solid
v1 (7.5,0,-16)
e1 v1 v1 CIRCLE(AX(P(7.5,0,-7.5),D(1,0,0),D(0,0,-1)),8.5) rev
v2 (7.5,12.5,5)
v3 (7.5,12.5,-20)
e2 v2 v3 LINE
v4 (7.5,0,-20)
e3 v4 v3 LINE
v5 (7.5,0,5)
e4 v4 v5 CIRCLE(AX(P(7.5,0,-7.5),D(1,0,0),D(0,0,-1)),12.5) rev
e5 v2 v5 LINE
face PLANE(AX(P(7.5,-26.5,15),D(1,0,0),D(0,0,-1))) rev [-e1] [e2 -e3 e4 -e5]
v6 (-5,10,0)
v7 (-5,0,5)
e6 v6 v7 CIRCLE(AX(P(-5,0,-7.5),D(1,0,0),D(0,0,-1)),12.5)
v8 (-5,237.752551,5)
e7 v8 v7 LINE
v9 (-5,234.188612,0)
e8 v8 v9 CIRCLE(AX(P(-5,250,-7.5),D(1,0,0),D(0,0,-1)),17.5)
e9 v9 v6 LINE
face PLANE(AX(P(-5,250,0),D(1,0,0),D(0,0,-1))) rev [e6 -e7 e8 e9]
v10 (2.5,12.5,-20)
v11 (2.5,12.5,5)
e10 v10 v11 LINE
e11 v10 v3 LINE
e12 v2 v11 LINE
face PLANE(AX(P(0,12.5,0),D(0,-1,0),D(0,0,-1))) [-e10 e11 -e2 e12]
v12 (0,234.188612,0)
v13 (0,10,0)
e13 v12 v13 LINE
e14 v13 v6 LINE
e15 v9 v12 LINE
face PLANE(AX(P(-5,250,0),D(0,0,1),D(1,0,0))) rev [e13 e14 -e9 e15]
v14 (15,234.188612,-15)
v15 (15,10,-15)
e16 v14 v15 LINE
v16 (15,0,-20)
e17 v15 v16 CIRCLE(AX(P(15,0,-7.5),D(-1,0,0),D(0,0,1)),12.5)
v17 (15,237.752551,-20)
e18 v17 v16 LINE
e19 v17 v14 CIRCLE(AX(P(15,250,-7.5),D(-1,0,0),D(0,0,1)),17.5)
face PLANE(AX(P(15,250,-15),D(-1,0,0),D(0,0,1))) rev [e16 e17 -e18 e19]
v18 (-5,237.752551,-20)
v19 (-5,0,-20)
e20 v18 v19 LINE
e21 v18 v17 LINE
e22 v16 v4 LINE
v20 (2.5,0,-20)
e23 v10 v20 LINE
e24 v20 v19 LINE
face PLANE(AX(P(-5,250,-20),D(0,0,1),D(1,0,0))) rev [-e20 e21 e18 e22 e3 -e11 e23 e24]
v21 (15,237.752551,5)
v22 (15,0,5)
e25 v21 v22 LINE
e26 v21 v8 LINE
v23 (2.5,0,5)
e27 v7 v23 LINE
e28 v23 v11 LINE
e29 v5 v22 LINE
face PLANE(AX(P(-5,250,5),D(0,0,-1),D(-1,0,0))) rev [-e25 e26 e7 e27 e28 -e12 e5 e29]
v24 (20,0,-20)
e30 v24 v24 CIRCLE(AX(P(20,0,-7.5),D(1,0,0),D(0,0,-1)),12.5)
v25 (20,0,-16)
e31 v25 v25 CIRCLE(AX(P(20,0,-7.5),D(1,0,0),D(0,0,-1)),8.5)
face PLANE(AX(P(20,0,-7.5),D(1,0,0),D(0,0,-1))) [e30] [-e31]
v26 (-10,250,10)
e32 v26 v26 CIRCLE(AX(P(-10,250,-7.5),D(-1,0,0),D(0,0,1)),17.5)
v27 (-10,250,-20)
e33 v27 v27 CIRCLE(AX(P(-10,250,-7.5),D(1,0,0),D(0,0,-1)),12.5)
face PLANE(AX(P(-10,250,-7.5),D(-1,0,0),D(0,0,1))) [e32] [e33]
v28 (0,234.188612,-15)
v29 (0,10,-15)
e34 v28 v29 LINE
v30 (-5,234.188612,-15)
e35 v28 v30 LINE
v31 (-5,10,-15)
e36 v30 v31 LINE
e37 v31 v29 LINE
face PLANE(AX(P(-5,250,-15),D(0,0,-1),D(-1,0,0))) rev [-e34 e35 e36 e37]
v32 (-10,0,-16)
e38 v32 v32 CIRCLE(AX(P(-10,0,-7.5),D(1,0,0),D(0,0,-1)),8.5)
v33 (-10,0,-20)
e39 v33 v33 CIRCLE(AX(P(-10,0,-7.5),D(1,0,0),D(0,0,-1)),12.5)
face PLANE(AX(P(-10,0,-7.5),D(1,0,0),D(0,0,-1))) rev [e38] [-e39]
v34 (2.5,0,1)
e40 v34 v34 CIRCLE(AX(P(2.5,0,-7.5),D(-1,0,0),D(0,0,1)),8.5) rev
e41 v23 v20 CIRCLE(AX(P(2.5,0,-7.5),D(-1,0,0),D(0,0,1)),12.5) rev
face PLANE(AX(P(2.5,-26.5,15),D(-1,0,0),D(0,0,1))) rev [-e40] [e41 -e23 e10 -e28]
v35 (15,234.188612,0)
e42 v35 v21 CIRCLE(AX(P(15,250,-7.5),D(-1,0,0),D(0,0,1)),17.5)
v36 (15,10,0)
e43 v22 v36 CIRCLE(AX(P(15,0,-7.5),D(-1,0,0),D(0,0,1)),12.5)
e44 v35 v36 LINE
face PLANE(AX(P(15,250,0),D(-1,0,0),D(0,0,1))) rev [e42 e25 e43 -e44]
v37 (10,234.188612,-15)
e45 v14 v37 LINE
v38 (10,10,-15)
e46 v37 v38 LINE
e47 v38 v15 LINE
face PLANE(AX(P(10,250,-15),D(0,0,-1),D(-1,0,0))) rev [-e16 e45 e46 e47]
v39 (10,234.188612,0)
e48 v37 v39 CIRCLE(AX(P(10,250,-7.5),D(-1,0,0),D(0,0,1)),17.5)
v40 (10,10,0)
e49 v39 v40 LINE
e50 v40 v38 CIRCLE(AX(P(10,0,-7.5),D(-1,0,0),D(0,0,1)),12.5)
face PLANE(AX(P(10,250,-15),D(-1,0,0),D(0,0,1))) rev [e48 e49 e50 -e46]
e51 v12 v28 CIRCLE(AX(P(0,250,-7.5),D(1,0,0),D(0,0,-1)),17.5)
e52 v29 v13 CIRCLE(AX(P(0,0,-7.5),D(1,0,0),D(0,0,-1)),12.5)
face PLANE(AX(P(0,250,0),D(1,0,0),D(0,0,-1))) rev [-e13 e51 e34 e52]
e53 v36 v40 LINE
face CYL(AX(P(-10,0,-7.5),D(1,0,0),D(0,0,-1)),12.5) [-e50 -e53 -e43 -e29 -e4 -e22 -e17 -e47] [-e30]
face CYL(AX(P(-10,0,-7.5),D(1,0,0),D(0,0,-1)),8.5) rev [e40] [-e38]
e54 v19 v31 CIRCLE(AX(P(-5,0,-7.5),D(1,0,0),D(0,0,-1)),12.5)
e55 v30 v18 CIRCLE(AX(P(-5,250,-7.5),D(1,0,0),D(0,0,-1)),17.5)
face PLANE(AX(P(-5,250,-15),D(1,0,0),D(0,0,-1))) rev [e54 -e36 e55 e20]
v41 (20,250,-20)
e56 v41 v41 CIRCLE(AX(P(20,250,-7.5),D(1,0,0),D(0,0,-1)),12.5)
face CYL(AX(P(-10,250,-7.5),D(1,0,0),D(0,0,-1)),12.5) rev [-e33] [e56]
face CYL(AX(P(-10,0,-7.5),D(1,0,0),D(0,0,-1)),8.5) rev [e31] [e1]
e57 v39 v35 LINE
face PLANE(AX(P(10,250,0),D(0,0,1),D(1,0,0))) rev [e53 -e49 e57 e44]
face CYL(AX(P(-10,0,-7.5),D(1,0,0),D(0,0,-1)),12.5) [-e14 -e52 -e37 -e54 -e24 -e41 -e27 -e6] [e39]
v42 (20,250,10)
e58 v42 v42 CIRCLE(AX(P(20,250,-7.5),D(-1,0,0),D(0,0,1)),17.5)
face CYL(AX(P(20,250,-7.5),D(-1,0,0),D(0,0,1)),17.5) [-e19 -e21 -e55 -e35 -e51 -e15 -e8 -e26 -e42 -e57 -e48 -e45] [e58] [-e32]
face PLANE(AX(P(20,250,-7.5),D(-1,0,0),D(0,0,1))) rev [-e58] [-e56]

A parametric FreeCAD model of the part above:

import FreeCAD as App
import Part
import Sketcher
from FreeCAD import Vector

doc = App.newDocument("Part")
body = doc.addObject("PartDesign::Body", "Body")

# Sketch on XZ plane
sketch1 = body.newObject("Sketcher::SketchObject", "Sketch")
sketch1.AttachmentSupport = (doc.getObject("XZ_Plane"), [""])
sketch1.MapMode = "FlatFace"
sketch1.addGeometry(Part.LineSegment(Vector(0, -15, 0), Vector(0, 0, 0)), False)
sketch1.addGeometry(Part.LineSegment(Vector(0, 0, 0), Vector(-5, 0, 0)), False)
sketch1.addGeometry(Part.LineSegment(Vector(-5, 0, 0), Vector(-5, 5, 0)), False)
sketch1.addGeometry(Part.LineSegment(Vector(-5, 5, 0), Vector(15, 5, 0)), False)
sketch1.addGeometry(Part.LineSegment(Vector(15, 5, 0), Vector(15, 0, 0)), False)
sketch1.addGeometry(Part.LineSegment(Vector(15, 0, 0), Vector(10, 0, 0)), False)
sketch1.addGeometry(Part.LineSegment(Vector(10, 0, 0), Vector(10, -15, 0)), False)
sketch1.addGeometry(Part.LineSegment(Vector(10, -15, 0), Vector(15, -15, 0)), False)
sketch1.addGeometry(Part.LineSegment(Vector(15, -15, 0), Vector(15, -20, 0)), False)
sketch1.addGeometry(Part.LineSegment(Vector(15, -20, 0), Vector(-5, -20, 0)), False)
sketch1.addGeometry(Part.LineSegment(Vector(-5, -20, 0), Vector(-5, -15, 0)), False)
sketch1.addGeometry(Part.LineSegment(Vector(-5, -15, 0), Vector(0, -15, 0)), False)
sketch1.addConstraint(Sketcher.Constraint("Coincident", 0, 2, 1, 1))
sketch1.addConstraint(Sketcher.Constraint("Coincident", 1, 2, 2, 1))
sketch1.addConstraint(Sketcher.Constraint("Coincident", 2, 2, 3, 1))
sketch1.addConstraint(Sketcher.Constraint("Coincident", 3, 2, 4, 1))
sketch1.addConstraint(Sketcher.Constraint("Coincident", 4, 2, 5, 1))
sketch1.addConstraint(Sketcher.Constraint("Coincident", 5, 2, 6, 1))
sketch1.addConstraint(Sketcher.Constraint("Coincident", 6, 2, 7, 1))
sketch1.addConstraint(Sketcher.Constraint("Coincident", 7, 2, 8, 1))
sketch1.addConstraint(Sketcher.Constraint("Coincident", 8, 2, 9, 1))
sketch1.addConstraint(Sketcher.Constraint("Coincident", 9, 2, 10, 1))
sketch1.addConstraint(Sketcher.Constraint("Coincident", 10, 2, 11, 1))
sketch1.addConstraint(Sketcher.Constraint("Coincident", 11, 2, 0, 1))
sketch1.addConstraint(Sketcher.Constraint("Vertical", 0))
sketch1.addConstraint(Sketcher.Constraint("Horizontal", 1))
sketch1.addConstraint(Sketcher.Constraint("Vertical", 2))
sketch1.addConstraint(Sketcher.Constraint("Horizontal", 3))
sketch1.addConstraint(Sketcher.Constraint("Vertical", 4))
sketch1.addConstraint(Sketcher.Constraint("Horizontal", 5))
sketch1.addConstraint(Sketcher.Constraint("Vertical", 6))
sketch1.addConstraint(Sketcher.Constraint("Horizontal", 7))
sketch1.addConstraint(Sketcher.Constraint("Vertical", 8))
sketch1.addConstraint(Sketcher.Constraint("Horizontal", 9))
sketch1.addConstraint(Sketcher.Constraint("Vertical", 10))
sketch1.addConstraint(Sketcher.Constraint("Horizontal", 11))
sketch1.addConstraint(Sketcher.Constraint("Coincident", 0, 2, -1, 1))
sketch1.addConstraint(Sketcher.Constraint("PointOnObject", 4, 2, -1))
sketch1.addConstraint(Sketcher.Constraint("Horizontal", 7, 2, 10, 2))
sketch1.addConstraint(Sketcher.Constraint("Vertical", 4, 2, 7, 2))
sketch1.addConstraint(Sketcher.Constraint("Vertical", 2, 2, 9, 2))
sketch1.addConstraint(Sketcher.Constraint("Equal", 1, 5))
sketch1.addConstraint(Sketcher.Constraint("Equal", 11, 2))
sketch1.addConstraint(Sketcher.Constraint("Equal", 4, 8))
sketch1.addConstraint(Sketcher.Constraint("DistanceX", 1, 2, 1, 1, 5.0))
sketch1.addConstraint(Sketcher.Constraint("DistanceX", 3, 1, 3, 2, 20.0))
sketch1.addConstraint(Sketcher.Constraint("DistanceY", 0, 1, 0, 2, 15.0))
pad1 = body.newObject("PartDesign::Pad", "Pad")
pad1.Profile = sketch1
pad1.Length = 250
pad1.Reversed = True

# Sketch on YZ plane
sketch2 = body.newObject("Sketcher::SketchObject", "Sketch001")
sketch2.AttachmentSupport = (doc.getObject("YZ_Plane"), [""])
sketch2.MapMode = "FlatFace"
sketch2.AttachmentOffset = App.Placement(Vector(0, 0, 10), App.Rotation())
sketch2.addGeometry(Part.Circle(Vector(0, -7.5, 0), Vector(0, 0, 1), 12.5), False)
sketch2.addConstraint(Sketcher.Constraint("PointOnObject", 0, 3, -2))
sketch2.addConstraint(Sketcher.Constraint("Diameter", 0, 25.0))
sketch2.addConstraint(Sketcher.Constraint("DistanceY", 0, 3, -1, 1, 7.5))
pad2 = body.newObject("PartDesign::Pad", "Pad001")
pad2.Profile = sketch2
pad2.Type = "TwoLengths"
pad2.Length = 10
pad2.Length2 = 20

# Sketch on YZ plane
sketch3 = body.newObject("Sketcher::SketchObject", "Sketch002")
sketch3.AttachmentSupport = (doc.getObject("YZ_Plane"), [""])
sketch3.MapMode = "FlatFace"
sketch3.AttachmentOffset = App.Placement(Vector(0, 0, 20), App.Rotation())
sketch3.addGeometry(Part.Circle(Vector(0, -7.5, 0), Vector(0, 0, 1), 8.5), False)
sketch3.addConstraint(Sketcher.Constraint("PointOnObject", 0, 3, -2))
sketch3.addConstraint(Sketcher.Constraint("Diameter", 0, 17.0))
sketch3.addConstraint(Sketcher.Constraint("DistanceY", 0, 3, -1, 1, 7.5))
pocket1 = body.newObject("PartDesign::Pocket", "Pocket")
pocket1.Profile = sketch3
pocket1.Type = "ThroughAll"

# Sketch on YZ plane
sketch4 = body.newObject("Sketcher::SketchObject", "Sketch003")
sketch4.AttachmentSupport = (doc.getObject("YZ_Plane"), [""])
sketch4.MapMode = "FlatFace"
sketch4.addGeometry(Part.Circle(Vector(250, -7.5, 0), Vector(0, 0, 1), 17.5), False)
sketch4.addConstraint(Sketcher.Constraint("Diameter", 0, 35.0))
sketch4.addConstraint(Sketcher.Constraint("DistanceX", -1, 1, 0, 3, 250.0))
sketch4.addConstraint(Sketcher.Constraint("DistanceY", 0, 3, -1, 1, 7.5))
pad3 = body.newObject("PartDesign::Pad", "Pad002")
pad3.Profile = sketch4
pad3.Type = "TwoLengths"
pad3.Length = 10
pad3.Length2 = 20
pad3.Reversed = True

# Sketch on YZ plane
sketch5 = body.newObject("Sketcher::SketchObject", "Sketch004")
sketch5.AttachmentSupport = (doc.getObject("YZ_Plane"), [""])
sketch5.MapMode = "FlatFace"
sketch5.AttachmentOffset = App.Placement(Vector(0, 0, 20), App.Rotation())
sketch5.addGeometry(Part.Circle(Vector(250, -7.5, 0), Vector(0, 0, 1), 12.5), False)
sketch5.addConstraint(Sketcher.Constraint("Diameter", 0, 25.0))
sketch5.addConstraint(Sketcher.Constraint("DistanceX", -1, 1, 0, 3, 250.0))
sketch5.addConstraint(Sketcher.Constraint("DistanceY", 0, 3, -1, 1, 7.5))
pocket2 = body.newObject("PartDesign::Pocket", "Pocket001")
pocket2.Profile = sketch5
pocket2.Type = "ThroughAll"

# Sketch on XZ plane
sketch6 = body.newObject("Sketcher::SketchObject", "Sketch005")
sketch6.AttachmentSupport = (doc.getObject("XZ_Plane"), [""])
sketch6.MapMode = "FlatFace"
sketch6.AttachmentOffset = App.Placement(Vector(0, 0, -12.5), App.Rotation())
sketch6.addGeometry(Part.LineSegment(Vector(2.5, -25, 0), Vector(2.5, 15, 0)), False)
sketch6.addGeometry(Part.LineSegment(Vector(2.5, 15, 0), Vector(7.5, 15, 0)), False)
sketch6.addGeometry(Part.LineSegment(Vector(7.5, 15, 0), Vector(7.5, -25, 0)), False)
sketch6.addGeometry(Part.LineSegment(Vector(7.5, -25, 0), Vector(2.5, -25, 0)), False)
sketch6.addConstraint(Sketcher.Constraint("Coincident", 0, 2, 1, 1))
sketch6.addConstraint(Sketcher.Constraint("Coincident", 1, 2, 2, 1))
sketch6.addConstraint(Sketcher.Constraint("Coincident", 2, 2, 3, 1))
sketch6.addConstraint(Sketcher.Constraint("Coincident", 3, 2, 0, 1))
sketch6.addConstraint(Sketcher.Constraint("Vertical", 0))
sketch6.addConstraint(Sketcher.Constraint("Horizontal", 1))
sketch6.addConstraint(Sketcher.Constraint("Vertical", 2))
sketch6.addConstraint(Sketcher.Constraint("Horizontal", 3))
sketch6.addConstraint(Sketcher.Constraint("DistanceX", 1, 1, 1, 2, 5.0))
sketch6.addConstraint(Sketcher.Constraint("DistanceY", 0, 1, 0, 2, 40.0))
sketch6.addConstraint(Sketcher.Constraint("DistanceY", -1, 1, 0, 2, 15.0))
sketch6.addConstraint(Sketcher.Constraint("DistanceX", -1, 1, 0, 2, 2.5))
pocket3 = body.newObject("PartDesign::Pocket", "Pocket002")
pocket3.Profile = sketch6
pocket3.Length = 39
pocket3.Reversed = True

doc.recompute()
